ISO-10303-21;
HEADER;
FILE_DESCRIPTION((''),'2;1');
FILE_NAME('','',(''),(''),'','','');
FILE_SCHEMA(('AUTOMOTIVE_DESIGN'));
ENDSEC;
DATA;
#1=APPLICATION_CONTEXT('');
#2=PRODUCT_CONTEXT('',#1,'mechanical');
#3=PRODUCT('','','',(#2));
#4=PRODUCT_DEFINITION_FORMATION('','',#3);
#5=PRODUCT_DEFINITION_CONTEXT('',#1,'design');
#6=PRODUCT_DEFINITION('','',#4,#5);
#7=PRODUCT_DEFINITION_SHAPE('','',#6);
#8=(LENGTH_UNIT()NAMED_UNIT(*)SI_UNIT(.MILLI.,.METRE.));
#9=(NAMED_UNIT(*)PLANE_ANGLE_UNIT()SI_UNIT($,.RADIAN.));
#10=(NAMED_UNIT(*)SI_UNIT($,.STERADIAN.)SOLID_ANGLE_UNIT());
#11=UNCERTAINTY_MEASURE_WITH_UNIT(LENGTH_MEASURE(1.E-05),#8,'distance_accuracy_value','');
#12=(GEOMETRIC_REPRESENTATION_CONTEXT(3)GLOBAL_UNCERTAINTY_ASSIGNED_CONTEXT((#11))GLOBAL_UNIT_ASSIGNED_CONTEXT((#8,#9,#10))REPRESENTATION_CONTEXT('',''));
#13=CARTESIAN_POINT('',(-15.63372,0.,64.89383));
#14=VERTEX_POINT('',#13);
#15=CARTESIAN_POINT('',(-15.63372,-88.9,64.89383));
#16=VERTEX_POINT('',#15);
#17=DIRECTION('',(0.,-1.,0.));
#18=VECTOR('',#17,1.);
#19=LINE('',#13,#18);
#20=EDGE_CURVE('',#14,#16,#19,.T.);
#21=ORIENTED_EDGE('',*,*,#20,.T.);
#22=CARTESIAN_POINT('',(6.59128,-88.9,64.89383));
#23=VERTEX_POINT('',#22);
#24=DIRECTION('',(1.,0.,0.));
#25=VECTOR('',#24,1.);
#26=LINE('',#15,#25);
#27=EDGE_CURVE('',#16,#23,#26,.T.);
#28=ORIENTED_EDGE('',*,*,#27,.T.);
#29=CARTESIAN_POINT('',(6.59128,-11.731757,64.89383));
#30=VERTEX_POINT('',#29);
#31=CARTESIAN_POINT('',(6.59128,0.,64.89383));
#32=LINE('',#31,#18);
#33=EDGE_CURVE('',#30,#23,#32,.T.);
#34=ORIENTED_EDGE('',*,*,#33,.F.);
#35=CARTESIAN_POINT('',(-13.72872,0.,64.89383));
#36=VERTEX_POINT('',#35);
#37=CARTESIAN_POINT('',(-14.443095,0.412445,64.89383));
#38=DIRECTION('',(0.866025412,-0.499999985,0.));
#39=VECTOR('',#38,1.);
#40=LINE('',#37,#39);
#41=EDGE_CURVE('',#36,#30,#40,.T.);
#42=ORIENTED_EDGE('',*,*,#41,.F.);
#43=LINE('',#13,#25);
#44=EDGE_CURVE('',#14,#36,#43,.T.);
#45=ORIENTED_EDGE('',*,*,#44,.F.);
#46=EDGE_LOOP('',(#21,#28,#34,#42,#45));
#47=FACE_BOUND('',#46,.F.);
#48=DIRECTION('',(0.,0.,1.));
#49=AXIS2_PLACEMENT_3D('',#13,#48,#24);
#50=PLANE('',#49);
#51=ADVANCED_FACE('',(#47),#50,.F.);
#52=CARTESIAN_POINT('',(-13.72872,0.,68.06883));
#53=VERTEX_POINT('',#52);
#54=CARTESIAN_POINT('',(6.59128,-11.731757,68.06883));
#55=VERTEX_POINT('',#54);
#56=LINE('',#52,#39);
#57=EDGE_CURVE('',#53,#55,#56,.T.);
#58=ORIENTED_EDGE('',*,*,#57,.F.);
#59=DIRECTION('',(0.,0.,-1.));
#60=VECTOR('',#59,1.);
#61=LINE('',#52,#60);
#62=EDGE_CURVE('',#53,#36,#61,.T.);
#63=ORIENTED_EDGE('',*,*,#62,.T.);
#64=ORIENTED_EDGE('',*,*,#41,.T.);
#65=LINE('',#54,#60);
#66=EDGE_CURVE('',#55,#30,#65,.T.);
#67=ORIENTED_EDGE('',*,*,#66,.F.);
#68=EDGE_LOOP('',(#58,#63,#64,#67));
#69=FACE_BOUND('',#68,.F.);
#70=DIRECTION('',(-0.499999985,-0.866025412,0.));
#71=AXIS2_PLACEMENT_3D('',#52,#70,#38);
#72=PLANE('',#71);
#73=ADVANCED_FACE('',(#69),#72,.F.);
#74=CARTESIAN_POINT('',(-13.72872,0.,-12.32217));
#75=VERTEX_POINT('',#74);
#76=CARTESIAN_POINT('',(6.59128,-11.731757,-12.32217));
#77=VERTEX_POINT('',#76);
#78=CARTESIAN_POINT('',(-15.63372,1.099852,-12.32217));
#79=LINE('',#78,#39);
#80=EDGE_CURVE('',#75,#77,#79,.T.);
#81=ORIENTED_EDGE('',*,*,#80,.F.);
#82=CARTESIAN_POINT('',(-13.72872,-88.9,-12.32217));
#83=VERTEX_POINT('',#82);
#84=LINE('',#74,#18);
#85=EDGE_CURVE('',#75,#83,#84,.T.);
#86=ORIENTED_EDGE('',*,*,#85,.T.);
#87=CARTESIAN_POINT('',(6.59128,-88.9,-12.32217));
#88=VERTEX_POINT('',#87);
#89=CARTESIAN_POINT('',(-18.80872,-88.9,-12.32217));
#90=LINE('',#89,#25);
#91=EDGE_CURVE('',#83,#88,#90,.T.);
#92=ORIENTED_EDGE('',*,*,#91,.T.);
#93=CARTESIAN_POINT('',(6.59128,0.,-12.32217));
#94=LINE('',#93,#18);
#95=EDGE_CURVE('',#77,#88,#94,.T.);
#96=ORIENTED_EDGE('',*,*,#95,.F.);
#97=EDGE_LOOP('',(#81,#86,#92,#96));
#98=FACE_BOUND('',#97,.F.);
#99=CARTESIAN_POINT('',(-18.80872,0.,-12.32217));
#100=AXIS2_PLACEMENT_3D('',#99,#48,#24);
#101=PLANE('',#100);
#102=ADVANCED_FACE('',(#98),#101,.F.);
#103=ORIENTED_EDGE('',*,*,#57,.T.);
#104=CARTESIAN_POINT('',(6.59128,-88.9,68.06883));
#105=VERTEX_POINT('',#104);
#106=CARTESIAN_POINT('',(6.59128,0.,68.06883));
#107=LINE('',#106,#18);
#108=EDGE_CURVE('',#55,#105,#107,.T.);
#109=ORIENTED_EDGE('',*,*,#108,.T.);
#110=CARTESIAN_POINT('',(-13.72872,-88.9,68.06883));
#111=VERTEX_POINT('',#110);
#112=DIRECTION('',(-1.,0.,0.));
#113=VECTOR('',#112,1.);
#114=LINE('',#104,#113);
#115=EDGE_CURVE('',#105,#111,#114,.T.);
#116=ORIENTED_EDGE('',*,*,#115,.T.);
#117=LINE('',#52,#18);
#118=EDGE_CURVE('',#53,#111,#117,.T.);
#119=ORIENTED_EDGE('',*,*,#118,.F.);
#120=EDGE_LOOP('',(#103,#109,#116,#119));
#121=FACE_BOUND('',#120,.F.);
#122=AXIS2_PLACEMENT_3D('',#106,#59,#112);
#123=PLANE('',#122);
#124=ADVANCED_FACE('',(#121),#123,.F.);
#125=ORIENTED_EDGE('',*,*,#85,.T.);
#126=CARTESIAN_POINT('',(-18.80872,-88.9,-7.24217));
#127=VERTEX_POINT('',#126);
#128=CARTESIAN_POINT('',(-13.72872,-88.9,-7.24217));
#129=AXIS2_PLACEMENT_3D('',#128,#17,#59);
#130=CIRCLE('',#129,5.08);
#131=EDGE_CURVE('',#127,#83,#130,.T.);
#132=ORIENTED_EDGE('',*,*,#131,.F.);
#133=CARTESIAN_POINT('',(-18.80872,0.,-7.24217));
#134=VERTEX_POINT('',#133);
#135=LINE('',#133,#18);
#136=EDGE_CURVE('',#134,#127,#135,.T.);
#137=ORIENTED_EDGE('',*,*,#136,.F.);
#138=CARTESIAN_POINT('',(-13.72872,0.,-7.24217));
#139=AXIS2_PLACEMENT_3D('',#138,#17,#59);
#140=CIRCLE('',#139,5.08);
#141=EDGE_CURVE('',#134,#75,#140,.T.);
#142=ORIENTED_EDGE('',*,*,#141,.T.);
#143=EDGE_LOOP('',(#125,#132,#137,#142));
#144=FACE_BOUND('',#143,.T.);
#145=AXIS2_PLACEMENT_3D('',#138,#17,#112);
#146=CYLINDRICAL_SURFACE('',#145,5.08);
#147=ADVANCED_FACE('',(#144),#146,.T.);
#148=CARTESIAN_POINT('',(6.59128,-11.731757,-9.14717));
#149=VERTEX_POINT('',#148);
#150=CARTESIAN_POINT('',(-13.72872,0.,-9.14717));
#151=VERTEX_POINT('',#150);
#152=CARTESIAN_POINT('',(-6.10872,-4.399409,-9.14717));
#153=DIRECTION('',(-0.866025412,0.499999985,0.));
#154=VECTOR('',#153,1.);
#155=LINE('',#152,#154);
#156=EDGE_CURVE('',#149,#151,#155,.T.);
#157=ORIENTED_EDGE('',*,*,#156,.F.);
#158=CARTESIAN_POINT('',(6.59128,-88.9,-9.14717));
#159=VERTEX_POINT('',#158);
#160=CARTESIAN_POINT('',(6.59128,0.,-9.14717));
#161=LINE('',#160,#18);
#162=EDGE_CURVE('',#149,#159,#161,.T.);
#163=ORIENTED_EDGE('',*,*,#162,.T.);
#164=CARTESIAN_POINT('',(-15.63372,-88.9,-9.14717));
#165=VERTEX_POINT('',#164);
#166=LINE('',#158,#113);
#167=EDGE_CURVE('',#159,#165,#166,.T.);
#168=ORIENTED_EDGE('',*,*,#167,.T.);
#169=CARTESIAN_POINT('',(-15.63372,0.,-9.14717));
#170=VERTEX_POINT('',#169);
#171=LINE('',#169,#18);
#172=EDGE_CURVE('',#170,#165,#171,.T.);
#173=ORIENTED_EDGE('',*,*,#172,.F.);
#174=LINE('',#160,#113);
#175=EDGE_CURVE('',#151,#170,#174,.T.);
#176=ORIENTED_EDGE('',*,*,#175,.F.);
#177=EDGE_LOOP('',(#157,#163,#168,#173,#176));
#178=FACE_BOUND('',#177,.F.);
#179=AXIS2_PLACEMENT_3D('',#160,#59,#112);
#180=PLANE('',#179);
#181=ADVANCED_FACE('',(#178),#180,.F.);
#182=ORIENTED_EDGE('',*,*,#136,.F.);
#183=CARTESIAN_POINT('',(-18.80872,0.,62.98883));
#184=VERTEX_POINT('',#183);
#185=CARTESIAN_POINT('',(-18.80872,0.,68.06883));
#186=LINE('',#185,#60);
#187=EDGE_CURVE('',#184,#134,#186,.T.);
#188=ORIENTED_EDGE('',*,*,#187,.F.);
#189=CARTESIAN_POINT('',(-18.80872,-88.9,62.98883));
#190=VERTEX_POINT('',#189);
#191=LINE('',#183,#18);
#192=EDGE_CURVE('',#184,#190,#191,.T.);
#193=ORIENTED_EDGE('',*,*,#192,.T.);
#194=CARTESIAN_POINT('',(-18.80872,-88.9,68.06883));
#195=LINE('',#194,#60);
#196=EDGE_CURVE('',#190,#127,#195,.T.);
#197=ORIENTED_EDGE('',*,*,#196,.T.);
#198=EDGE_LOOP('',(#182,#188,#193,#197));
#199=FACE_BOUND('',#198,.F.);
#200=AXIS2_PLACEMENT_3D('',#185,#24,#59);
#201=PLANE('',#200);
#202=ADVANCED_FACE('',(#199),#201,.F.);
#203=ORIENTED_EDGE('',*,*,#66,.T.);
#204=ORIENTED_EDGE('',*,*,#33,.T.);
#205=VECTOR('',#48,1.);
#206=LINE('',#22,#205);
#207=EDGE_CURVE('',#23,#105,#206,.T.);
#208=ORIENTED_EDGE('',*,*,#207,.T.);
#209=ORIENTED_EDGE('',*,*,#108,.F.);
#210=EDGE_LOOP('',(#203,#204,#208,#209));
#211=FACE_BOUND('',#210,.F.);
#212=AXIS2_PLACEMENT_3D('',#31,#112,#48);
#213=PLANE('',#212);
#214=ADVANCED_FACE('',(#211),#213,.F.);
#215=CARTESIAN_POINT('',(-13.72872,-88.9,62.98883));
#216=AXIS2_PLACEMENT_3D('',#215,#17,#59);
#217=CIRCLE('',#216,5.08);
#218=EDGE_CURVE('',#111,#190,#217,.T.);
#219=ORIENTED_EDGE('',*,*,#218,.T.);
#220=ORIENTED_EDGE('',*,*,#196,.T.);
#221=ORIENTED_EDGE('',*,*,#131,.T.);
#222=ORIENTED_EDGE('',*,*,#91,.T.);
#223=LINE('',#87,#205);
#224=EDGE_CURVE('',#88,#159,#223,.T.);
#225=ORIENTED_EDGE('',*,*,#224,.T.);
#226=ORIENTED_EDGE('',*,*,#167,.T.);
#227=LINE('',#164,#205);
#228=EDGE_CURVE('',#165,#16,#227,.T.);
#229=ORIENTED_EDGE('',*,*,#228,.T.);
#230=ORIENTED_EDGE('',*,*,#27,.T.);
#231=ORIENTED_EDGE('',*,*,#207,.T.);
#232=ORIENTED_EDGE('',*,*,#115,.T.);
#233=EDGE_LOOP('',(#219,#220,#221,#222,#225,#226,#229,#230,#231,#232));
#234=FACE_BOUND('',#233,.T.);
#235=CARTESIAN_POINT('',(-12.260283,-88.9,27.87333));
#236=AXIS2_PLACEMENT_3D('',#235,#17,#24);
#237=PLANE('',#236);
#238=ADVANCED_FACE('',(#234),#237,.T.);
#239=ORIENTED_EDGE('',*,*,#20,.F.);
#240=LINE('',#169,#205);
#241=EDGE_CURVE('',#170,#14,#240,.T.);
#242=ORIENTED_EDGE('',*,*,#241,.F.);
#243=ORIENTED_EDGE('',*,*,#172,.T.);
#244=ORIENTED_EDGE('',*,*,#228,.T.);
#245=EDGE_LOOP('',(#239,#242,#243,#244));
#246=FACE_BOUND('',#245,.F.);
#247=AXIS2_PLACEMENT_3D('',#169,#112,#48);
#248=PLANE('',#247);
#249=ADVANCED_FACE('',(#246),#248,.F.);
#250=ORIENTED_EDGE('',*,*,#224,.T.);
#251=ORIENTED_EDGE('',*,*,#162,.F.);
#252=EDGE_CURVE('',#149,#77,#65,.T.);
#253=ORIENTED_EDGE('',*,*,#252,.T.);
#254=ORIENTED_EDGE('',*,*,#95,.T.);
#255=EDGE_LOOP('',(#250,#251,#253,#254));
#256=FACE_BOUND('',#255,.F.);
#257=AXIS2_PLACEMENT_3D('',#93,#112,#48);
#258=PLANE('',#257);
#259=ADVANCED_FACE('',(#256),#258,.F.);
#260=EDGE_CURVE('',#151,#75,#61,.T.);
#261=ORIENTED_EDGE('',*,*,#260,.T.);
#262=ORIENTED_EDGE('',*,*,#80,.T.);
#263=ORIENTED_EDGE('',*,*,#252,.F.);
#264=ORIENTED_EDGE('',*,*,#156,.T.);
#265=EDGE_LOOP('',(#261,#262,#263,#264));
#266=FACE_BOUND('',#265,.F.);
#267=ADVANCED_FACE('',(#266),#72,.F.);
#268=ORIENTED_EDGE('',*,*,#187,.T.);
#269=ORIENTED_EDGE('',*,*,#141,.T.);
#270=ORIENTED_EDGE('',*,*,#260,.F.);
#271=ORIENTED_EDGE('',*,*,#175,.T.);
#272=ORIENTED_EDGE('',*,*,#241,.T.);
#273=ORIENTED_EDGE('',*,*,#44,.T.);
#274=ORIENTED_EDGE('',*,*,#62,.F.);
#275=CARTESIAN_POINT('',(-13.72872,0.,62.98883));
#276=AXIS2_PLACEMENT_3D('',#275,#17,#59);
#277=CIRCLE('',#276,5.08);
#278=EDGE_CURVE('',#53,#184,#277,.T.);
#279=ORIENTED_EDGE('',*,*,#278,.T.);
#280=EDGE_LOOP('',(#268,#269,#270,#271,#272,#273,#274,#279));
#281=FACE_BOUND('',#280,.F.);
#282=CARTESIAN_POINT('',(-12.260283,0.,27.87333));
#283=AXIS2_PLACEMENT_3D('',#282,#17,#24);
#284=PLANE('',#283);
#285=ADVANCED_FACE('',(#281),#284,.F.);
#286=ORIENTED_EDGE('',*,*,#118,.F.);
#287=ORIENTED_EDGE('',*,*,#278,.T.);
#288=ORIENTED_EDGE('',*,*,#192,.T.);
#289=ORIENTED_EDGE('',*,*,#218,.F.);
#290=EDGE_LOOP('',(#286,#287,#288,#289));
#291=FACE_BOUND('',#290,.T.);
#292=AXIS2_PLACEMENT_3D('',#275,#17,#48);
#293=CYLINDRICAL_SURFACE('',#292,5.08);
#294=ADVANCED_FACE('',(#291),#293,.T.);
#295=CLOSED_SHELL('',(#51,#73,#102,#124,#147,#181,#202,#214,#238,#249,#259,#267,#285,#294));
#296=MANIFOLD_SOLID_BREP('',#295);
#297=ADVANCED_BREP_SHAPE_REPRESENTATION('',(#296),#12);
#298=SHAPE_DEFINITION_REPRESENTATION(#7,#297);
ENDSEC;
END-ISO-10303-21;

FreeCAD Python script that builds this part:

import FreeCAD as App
import Part
import Sketcher

V = App.Vector
Q = App.Units.Quantity


def edges_at(feature, points):
    """Names of the edges that pass closest to the given points."""
    edges = feature.Shape.Edges
    near = lambda p: min(range(len(edges)), key=lambda i: edges[i].distToShape(Part.Vertex(*p))[0])
    return sorted({f"Edge{near(p) + 1}" for p in points})

doc = App.newDocument("Part")
body = doc.addObject("PartDesign::Body", "Body")

sketch1 = body.newObject("Sketcher::SketchObject", "Sketch")
sketch1.AttachmentSupport = (doc.getObject("XZ_Plane"), [""])
sketch1.MapMode = "FlatFace"
sketch1.addGeometry(Part.LineSegment(V(6.6, 64.9, 0), V(6.6, 68.1, 0)), False)
sketch1.addGeometry(Part.LineSegment(V(6.6, 68.1, 0), V(-18.8, 68.1, 0)), False)
sketch1.addGeometry(Part.LineSegment(V(-18.8, 68.1, 0), V(-18.8, -12.3, 0)), False)
sketch1.addGeometry(Part.LineSegment(V(-18.8, -12.3, 0), V(6.6, -12.3, 0)), False)
sketch1.addGeometry(Part.LineSegment(V(6.6, -12.3, 0), V(6.6, -9.1, 0)), False)
sketch1.addGeometry(Part.LineSegment(V(6.6, -9.1, 0), V(-15.6, -9.1, 0)), False)
sketch1.addGeometry(Part.LineSegment(V(-15.6, -9.1, 0), V(-15.6, 64.9, 0)), False)
sketch1.addGeometry(Part.LineSegment(V(-15.6, 64.9, 0), V(6.6, 64.9, 0)), False)
sketch1.addConstraint(Sketcher.Constraint("Coincident", 0, 2, 1, 1))
sketch1.addConstraint(Sketcher.Constraint("Coincident", 1, 2, 2, 1))
sketch1.addConstraint(Sketcher.Constraint("Coincident", 2, 2, 3, 1))
sketch1.addConstraint(Sketcher.Constraint("Coincident", 3, 2, 4, 1))
sketch1.addConstraint(Sketcher.Constraint("Coincident", 4, 2, 5, 1))
sketch1.addConstraint(Sketcher.Constraint("Coincident", 5, 2, 6, 1))
sketch1.addConstraint(Sketcher.Constraint("Coincident", 6, 2, 7, 1))
sketch1.addConstraint(Sketcher.Constraint("Coincident", 7, 2, 0, 1))
sketch1.addConstraint(Sketcher.Constraint("Vertical", 0))
sketch1.addConstraint(Sketcher.Constraint("Horizontal", 1))
sketch1.addConstraint(Sketcher.Constraint("Vertical", 2))
sketch1.addConstraint(Sketcher.Constraint("Horizontal", 3))
sketch1.addConstraint(Sketcher.Constraint("Vertical", 4))
sketch1.addConstraint(Sketcher.Constraint("Horizontal", 5))
sketch1.addConstraint(Sketcher.Constraint("Vertical", 6))
sketch1.addConstraint(Sketcher.Constraint("Horizontal", 7))
sketch1.addConstraint(Sketcher.Constraint("Vertical", 0, 2, 3, 2))
sketch1.addConstraint(Sketcher.Constraint("Equal", 0, 4))
sketch1.addConstraint(Sketcher.Constraint("DistanceX", 1, 2, 1, 1, Q("1 in")))
sketch1.addConstraint(Sketcher.Constraint("DistanceX", 5, 2, 5, 1, Q("0.875 in")))
sketch1.addConstraint(Sketcher.Constraint("DistanceY", 0, 1, 0, 2, Q("0.125 in")))
sketch1.addConstraint(Sketcher.Constraint("DistanceY", 2, 2, 2, 1, Q("3.165 in")))
sketch1.addConstraint(Sketcher.Constraint("DistanceX", -1, 1, 0, 2, 6.59128))
sketch1.addConstraint(Sketcher.Constraint("DistanceY", -1, 1, 0, 2, 68.06883))
pad1 = body.newObject("PartDesign::Pad", "Pad")
pad1.Profile = sketch1
pad1.Length = Q("3.5 in")
doc.recompute()

fillet = body.newObject("PartDesign::Fillet", "Fillet")
fillet.Base = (pad1, edges_at(pad1, [(-18.809, -44.45, 68.069), (-18.809, -44.45, -12.322)]))
fillet.Radius = Q("0.2 in")

sketch2 = body.newObject("Sketcher::SketchObject", "Sketch001")
sketch2.AttachmentSupport = (doc.getObject("XY_Plane"), [""])
sketch2.MapMode = "FlatFace"
sketch2.AttachmentOffset = App.Placement(V(0, 0, 68.06883), App.Rotation())
sketch2.addGeometry(Part.LineSegment(V(7, 0, 0), V(-14, 0, 0)), False)
sketch2.addGeometry(Part.LineSegment(V(-14, 0, 0), V(7, -12, 0)), False)
sketch2.addGeometry(Part.LineSegment(V(7, -12, 0), V(7, 0, 0)), False)
sketch2.addConstraint(Sketcher.Constraint("Coincident", 0, 2, 1, 1))
sketch2.addConstraint(Sketcher.Constraint("Coincident", 1, 2, 2, 1))
sketch2.addConstraint(Sketcher.Constraint("Coincident", 2, 2, 0, 1))
sketch2.addConstraint(Sketcher.Constraint("Horizontal", 0))
sketch2.addConstraint(Sketcher.Constraint("Vertical", 2))
sketch2.addConstraint(Sketcher.Constraint("PointOnObject", 0, 2, -1))
sketch2.addConstraint(Sketcher.Constraint("DistanceX", 0, 2, 0, 1, Q("0.8 in")))
sketch2.addConstraint(Sketcher.Constraint("Angle", 1, Q("-29.999999 deg")))
sketch2.addConstraint(Sketcher.Constraint("DistanceX", 0, 2, -1, 1, 13.72872))
pocket1 = body.newObject("PartDesign::Pocket", "Pocket")
pocket1.Profile = sketch2
pocket1.Length = Q("4.07 in")

doc.recompute()
